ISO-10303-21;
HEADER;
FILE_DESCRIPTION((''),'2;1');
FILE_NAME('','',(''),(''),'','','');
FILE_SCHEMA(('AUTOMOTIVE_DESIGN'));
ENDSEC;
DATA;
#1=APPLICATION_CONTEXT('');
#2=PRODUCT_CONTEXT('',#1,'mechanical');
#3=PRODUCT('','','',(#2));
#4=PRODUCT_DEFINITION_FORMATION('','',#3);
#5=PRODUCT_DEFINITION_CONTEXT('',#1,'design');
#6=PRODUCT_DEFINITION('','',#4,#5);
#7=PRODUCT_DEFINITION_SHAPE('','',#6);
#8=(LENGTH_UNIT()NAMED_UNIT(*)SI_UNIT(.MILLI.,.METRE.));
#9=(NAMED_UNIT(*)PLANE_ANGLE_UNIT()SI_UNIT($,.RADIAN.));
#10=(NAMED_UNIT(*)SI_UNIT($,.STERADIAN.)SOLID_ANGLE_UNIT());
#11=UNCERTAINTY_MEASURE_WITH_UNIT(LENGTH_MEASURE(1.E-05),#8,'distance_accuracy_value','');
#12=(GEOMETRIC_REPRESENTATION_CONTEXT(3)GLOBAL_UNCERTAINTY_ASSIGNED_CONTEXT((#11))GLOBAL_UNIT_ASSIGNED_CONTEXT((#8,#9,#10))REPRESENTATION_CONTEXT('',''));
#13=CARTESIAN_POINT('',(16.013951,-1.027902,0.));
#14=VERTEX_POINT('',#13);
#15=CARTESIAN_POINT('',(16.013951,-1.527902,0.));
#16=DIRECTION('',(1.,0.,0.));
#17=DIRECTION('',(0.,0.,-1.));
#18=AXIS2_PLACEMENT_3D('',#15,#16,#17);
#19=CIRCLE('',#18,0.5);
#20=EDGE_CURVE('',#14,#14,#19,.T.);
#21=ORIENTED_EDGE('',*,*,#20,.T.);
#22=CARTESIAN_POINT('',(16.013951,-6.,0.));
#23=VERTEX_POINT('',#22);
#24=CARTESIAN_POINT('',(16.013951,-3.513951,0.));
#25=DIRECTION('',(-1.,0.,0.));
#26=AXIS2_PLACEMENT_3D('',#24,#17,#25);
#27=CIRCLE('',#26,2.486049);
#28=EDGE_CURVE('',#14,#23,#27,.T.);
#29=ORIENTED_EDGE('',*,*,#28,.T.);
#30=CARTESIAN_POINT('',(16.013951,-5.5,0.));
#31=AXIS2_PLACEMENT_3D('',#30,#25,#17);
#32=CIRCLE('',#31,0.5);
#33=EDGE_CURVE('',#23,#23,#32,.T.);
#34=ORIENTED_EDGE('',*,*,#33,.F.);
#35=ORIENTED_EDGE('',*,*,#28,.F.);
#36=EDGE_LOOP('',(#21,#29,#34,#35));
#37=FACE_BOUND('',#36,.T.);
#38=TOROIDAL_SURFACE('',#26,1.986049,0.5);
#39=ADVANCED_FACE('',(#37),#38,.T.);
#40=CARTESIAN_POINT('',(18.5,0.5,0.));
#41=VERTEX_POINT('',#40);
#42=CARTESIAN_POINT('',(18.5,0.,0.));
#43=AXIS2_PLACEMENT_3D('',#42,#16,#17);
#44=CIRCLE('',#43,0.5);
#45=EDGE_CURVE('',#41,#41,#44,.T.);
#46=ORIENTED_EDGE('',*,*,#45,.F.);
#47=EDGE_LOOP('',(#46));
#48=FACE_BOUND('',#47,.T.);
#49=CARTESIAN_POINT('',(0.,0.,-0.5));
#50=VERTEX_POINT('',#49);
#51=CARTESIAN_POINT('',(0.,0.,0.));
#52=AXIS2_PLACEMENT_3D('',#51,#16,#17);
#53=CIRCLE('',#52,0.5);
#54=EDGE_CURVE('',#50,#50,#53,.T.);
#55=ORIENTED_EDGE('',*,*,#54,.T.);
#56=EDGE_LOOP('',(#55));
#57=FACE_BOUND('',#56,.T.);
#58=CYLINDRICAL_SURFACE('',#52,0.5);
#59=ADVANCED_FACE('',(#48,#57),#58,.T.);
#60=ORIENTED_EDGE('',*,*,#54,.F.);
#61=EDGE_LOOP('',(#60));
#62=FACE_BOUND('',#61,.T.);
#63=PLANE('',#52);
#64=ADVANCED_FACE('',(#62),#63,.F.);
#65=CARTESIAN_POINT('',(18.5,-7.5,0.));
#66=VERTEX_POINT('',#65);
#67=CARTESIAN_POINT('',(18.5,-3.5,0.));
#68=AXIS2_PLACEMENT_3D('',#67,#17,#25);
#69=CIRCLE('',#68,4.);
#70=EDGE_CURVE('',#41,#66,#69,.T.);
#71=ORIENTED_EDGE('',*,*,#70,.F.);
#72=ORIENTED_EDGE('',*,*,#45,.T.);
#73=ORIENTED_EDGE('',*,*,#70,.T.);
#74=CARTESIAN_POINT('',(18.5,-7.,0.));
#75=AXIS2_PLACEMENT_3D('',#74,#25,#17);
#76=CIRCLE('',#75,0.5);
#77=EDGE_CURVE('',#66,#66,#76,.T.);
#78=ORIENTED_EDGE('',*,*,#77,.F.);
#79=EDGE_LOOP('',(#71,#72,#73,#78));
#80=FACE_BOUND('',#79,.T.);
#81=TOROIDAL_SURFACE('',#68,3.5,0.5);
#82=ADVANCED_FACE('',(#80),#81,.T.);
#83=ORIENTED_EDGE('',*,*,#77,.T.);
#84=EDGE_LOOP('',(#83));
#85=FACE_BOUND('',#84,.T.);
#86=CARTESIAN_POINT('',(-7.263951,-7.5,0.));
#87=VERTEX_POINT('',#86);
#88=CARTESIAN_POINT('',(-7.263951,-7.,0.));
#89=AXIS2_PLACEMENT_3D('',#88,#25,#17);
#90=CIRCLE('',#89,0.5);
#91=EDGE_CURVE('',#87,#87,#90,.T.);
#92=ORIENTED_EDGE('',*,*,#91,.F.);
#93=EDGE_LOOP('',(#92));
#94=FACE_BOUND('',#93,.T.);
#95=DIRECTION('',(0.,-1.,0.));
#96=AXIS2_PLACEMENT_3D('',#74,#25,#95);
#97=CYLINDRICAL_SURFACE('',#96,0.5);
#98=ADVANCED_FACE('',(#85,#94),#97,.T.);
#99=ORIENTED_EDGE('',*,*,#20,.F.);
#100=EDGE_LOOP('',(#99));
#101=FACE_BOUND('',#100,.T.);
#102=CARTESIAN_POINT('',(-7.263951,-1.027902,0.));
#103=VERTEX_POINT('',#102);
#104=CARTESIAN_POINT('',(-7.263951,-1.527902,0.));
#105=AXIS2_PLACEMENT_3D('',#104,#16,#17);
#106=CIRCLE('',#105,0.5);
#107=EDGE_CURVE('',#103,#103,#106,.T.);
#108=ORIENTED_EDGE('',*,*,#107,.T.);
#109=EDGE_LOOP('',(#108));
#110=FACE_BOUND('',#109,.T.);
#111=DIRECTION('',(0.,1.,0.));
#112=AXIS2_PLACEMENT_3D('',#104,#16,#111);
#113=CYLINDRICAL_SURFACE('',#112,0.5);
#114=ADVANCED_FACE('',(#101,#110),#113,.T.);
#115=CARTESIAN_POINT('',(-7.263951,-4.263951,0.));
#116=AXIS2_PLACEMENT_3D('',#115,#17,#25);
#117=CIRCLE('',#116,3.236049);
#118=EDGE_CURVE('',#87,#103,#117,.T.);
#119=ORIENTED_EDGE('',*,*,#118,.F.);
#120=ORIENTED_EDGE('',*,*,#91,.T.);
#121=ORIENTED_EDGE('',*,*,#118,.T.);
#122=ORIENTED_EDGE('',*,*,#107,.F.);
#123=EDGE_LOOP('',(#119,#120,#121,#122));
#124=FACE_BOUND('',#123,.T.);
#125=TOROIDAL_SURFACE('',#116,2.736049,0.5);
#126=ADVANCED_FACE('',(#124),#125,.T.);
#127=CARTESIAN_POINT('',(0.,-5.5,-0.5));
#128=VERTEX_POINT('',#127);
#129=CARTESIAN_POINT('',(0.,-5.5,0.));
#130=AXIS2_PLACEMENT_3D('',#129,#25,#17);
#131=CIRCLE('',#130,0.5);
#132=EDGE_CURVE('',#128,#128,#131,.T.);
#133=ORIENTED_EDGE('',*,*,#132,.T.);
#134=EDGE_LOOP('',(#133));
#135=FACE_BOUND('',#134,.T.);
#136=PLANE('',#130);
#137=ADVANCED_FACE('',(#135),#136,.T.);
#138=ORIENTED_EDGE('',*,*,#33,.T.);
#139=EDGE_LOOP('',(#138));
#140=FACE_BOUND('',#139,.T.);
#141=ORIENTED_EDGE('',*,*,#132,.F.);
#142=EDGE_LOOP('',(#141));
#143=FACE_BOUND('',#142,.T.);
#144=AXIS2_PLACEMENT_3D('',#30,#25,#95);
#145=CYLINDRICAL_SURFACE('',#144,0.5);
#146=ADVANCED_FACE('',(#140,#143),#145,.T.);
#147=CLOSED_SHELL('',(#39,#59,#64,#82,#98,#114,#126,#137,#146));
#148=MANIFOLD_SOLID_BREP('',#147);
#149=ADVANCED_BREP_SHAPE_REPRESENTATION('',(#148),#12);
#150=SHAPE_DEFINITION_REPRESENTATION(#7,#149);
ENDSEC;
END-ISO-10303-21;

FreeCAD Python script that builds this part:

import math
import FreeCAD as App
import Part
import Sketcher

V = App.Vector

doc = App.newDocument("Part")
params = doc.addObject("Spreadsheet::Sheet", "Params")
for row, (alias, value) in enumerate([
    ("sketch1_diameter", "1 mm"),
    ("sketch2_radius", "3.5 mm"),
    ("sketch2_width", "18.5 mm"),
], start=1):
    params.set(f"A{row}", alias)
    params.set(f"B{row}", "=" + value)
    params.setAlias(f"B{row}", alias)

body = doc.addObject("PartDesign::Body", "Body")

sketch1 = doc.addObject("Sketcher::SketchObject", "Sketch")
body.addObject(sketch1)
sketch1.AttachmentSupport = (doc.YZ_Plane, [""])
sketch1.MapMode = "FlatFace"
sketch1.addGeometry(Part.Circle(V(0, 0, 0), V(0, 0, 1), 0.5), False)
sketch1.addConstraint(Sketcher.Constraint("Coincident", 0, 3, -1, 1))
sketch1.addConstraint(Sketcher.Constraint("Diameter", 0, 1.0))
sketch1.setExpression("Constraints[1]", "Params.sketch1_diameter")

sketch2 = doc.addObject("Sketcher::SketchObject", "Sketch001")
body.addObject(sketch2)
sketch2.AttachmentSupport = (doc.XY_Plane, [""])
sketch2.MapMode = "FlatFace"
sketch2.addGeometry(Part.LineSegment(V(0, 0, 0), V(18.5, 0, 0)), False)
sketch2.addGeometry(Part.ArcOfCircle(Part.Circle(V(18.5, -3.5, 0), V(0, 0, 1), 3.5), math.radians(-90), math.radians(90)), False)
sketch2.addGeometry(Part.LineSegment(V(18.5, -7, 0), V(-7.3, -7, 0)), False)
sketch2.addGeometry(Part.ArcOfCircle(Part.Circle(V(-7.3, -4.3, 0), V(0, 0, 1), 2.7), math.radians(90), math.radians(270)), False)
sketch2.addGeometry(Part.LineSegment(V(-7.3, -1.5, 0), V(16, -1.5, 0)), False)
sketch2.addGeometry(Part.ArcOfCircle(Part.Circle(V(16, -3.5, 0), V(0, 0, 1), 2), math.radians(-90), math.radians(90)), False)
sketch2.addGeometry(Part.LineSegment(V(16, -5.5, 0), V(0, -5.5, 0)), False)
sketch2.addConstraint(Sketcher.Constraint("Tangent", 0, 2, 1, 2))
sketch2.addConstraint(Sketcher.Constraint("Tangent", 1, 1, 2, 1))
sketch2.addConstraint(Sketcher.Constraint("Tangent", 2, 2, 3, 2))
sketch2.addConstraint(Sketcher.Constraint("Tangent", 3, 1, 4, 1))
sketch2.addConstraint(Sketcher.Constraint("Tangent", 4, 2, 5, 2))
sketch2.addConstraint(Sketcher.Constraint("Tangent", 5, 1, 6, 1))
sketch2.addConstraint(Sketcher.Constraint("Horizontal", 0))
sketch2.addConstraint(Sketcher.Constraint("Horizontal", 2))
sketch2.addConstraint(Sketcher.Constraint("Horizontal", 4))
sketch2.addConstraint(Sketcher.Constraint("Horizontal", 6))
sketch2.addConstraint(Sketcher.Constraint("Coincident", 0, 1, -1, 1))
sketch2.addConstraint(Sketcher.Constraint("PointOnObject", 6, 2, -2))
sketch2.addConstraint(Sketcher.Constraint("Radius", 1, 3.5))
sketch2.addConstraint(Sketcher.Constraint("DistanceX", 0, 1, 0, 2, 18.5))
sketch2.addConstraint(Sketcher.Constraint("DistanceY", 5, 1, 1, 3, 2.0))
sketch2.addConstraint(Sketcher.Constraint("Radius", 3, 2.736049))
sketch2.addConstraint(Sketcher.Constraint("DistanceX", 4, 1, 4, 2, 23.277902))
sketch2.addConstraint(Sketcher.Constraint("DistanceX", 2, 2, 2, 1, 25.763951))
sketch2.setExpression("Constraints[12]", "Params.sketch2_radius")
sketch2.setExpression("Constraints[13]", "Params.sketch2_width")
doc.recompute()

additivepipe = doc.addObject("PartDesign::AdditivePipe", "AdditivePipe")
body.addObject(additivepipe)
additivepipe.Profile = sketch1
additivepipe.Spine = (sketch2, ["Edge1", "Edge2", "Edge3", "Edge4", "Edge5", "Edge6", "Edge7"])

doc.recompute()
